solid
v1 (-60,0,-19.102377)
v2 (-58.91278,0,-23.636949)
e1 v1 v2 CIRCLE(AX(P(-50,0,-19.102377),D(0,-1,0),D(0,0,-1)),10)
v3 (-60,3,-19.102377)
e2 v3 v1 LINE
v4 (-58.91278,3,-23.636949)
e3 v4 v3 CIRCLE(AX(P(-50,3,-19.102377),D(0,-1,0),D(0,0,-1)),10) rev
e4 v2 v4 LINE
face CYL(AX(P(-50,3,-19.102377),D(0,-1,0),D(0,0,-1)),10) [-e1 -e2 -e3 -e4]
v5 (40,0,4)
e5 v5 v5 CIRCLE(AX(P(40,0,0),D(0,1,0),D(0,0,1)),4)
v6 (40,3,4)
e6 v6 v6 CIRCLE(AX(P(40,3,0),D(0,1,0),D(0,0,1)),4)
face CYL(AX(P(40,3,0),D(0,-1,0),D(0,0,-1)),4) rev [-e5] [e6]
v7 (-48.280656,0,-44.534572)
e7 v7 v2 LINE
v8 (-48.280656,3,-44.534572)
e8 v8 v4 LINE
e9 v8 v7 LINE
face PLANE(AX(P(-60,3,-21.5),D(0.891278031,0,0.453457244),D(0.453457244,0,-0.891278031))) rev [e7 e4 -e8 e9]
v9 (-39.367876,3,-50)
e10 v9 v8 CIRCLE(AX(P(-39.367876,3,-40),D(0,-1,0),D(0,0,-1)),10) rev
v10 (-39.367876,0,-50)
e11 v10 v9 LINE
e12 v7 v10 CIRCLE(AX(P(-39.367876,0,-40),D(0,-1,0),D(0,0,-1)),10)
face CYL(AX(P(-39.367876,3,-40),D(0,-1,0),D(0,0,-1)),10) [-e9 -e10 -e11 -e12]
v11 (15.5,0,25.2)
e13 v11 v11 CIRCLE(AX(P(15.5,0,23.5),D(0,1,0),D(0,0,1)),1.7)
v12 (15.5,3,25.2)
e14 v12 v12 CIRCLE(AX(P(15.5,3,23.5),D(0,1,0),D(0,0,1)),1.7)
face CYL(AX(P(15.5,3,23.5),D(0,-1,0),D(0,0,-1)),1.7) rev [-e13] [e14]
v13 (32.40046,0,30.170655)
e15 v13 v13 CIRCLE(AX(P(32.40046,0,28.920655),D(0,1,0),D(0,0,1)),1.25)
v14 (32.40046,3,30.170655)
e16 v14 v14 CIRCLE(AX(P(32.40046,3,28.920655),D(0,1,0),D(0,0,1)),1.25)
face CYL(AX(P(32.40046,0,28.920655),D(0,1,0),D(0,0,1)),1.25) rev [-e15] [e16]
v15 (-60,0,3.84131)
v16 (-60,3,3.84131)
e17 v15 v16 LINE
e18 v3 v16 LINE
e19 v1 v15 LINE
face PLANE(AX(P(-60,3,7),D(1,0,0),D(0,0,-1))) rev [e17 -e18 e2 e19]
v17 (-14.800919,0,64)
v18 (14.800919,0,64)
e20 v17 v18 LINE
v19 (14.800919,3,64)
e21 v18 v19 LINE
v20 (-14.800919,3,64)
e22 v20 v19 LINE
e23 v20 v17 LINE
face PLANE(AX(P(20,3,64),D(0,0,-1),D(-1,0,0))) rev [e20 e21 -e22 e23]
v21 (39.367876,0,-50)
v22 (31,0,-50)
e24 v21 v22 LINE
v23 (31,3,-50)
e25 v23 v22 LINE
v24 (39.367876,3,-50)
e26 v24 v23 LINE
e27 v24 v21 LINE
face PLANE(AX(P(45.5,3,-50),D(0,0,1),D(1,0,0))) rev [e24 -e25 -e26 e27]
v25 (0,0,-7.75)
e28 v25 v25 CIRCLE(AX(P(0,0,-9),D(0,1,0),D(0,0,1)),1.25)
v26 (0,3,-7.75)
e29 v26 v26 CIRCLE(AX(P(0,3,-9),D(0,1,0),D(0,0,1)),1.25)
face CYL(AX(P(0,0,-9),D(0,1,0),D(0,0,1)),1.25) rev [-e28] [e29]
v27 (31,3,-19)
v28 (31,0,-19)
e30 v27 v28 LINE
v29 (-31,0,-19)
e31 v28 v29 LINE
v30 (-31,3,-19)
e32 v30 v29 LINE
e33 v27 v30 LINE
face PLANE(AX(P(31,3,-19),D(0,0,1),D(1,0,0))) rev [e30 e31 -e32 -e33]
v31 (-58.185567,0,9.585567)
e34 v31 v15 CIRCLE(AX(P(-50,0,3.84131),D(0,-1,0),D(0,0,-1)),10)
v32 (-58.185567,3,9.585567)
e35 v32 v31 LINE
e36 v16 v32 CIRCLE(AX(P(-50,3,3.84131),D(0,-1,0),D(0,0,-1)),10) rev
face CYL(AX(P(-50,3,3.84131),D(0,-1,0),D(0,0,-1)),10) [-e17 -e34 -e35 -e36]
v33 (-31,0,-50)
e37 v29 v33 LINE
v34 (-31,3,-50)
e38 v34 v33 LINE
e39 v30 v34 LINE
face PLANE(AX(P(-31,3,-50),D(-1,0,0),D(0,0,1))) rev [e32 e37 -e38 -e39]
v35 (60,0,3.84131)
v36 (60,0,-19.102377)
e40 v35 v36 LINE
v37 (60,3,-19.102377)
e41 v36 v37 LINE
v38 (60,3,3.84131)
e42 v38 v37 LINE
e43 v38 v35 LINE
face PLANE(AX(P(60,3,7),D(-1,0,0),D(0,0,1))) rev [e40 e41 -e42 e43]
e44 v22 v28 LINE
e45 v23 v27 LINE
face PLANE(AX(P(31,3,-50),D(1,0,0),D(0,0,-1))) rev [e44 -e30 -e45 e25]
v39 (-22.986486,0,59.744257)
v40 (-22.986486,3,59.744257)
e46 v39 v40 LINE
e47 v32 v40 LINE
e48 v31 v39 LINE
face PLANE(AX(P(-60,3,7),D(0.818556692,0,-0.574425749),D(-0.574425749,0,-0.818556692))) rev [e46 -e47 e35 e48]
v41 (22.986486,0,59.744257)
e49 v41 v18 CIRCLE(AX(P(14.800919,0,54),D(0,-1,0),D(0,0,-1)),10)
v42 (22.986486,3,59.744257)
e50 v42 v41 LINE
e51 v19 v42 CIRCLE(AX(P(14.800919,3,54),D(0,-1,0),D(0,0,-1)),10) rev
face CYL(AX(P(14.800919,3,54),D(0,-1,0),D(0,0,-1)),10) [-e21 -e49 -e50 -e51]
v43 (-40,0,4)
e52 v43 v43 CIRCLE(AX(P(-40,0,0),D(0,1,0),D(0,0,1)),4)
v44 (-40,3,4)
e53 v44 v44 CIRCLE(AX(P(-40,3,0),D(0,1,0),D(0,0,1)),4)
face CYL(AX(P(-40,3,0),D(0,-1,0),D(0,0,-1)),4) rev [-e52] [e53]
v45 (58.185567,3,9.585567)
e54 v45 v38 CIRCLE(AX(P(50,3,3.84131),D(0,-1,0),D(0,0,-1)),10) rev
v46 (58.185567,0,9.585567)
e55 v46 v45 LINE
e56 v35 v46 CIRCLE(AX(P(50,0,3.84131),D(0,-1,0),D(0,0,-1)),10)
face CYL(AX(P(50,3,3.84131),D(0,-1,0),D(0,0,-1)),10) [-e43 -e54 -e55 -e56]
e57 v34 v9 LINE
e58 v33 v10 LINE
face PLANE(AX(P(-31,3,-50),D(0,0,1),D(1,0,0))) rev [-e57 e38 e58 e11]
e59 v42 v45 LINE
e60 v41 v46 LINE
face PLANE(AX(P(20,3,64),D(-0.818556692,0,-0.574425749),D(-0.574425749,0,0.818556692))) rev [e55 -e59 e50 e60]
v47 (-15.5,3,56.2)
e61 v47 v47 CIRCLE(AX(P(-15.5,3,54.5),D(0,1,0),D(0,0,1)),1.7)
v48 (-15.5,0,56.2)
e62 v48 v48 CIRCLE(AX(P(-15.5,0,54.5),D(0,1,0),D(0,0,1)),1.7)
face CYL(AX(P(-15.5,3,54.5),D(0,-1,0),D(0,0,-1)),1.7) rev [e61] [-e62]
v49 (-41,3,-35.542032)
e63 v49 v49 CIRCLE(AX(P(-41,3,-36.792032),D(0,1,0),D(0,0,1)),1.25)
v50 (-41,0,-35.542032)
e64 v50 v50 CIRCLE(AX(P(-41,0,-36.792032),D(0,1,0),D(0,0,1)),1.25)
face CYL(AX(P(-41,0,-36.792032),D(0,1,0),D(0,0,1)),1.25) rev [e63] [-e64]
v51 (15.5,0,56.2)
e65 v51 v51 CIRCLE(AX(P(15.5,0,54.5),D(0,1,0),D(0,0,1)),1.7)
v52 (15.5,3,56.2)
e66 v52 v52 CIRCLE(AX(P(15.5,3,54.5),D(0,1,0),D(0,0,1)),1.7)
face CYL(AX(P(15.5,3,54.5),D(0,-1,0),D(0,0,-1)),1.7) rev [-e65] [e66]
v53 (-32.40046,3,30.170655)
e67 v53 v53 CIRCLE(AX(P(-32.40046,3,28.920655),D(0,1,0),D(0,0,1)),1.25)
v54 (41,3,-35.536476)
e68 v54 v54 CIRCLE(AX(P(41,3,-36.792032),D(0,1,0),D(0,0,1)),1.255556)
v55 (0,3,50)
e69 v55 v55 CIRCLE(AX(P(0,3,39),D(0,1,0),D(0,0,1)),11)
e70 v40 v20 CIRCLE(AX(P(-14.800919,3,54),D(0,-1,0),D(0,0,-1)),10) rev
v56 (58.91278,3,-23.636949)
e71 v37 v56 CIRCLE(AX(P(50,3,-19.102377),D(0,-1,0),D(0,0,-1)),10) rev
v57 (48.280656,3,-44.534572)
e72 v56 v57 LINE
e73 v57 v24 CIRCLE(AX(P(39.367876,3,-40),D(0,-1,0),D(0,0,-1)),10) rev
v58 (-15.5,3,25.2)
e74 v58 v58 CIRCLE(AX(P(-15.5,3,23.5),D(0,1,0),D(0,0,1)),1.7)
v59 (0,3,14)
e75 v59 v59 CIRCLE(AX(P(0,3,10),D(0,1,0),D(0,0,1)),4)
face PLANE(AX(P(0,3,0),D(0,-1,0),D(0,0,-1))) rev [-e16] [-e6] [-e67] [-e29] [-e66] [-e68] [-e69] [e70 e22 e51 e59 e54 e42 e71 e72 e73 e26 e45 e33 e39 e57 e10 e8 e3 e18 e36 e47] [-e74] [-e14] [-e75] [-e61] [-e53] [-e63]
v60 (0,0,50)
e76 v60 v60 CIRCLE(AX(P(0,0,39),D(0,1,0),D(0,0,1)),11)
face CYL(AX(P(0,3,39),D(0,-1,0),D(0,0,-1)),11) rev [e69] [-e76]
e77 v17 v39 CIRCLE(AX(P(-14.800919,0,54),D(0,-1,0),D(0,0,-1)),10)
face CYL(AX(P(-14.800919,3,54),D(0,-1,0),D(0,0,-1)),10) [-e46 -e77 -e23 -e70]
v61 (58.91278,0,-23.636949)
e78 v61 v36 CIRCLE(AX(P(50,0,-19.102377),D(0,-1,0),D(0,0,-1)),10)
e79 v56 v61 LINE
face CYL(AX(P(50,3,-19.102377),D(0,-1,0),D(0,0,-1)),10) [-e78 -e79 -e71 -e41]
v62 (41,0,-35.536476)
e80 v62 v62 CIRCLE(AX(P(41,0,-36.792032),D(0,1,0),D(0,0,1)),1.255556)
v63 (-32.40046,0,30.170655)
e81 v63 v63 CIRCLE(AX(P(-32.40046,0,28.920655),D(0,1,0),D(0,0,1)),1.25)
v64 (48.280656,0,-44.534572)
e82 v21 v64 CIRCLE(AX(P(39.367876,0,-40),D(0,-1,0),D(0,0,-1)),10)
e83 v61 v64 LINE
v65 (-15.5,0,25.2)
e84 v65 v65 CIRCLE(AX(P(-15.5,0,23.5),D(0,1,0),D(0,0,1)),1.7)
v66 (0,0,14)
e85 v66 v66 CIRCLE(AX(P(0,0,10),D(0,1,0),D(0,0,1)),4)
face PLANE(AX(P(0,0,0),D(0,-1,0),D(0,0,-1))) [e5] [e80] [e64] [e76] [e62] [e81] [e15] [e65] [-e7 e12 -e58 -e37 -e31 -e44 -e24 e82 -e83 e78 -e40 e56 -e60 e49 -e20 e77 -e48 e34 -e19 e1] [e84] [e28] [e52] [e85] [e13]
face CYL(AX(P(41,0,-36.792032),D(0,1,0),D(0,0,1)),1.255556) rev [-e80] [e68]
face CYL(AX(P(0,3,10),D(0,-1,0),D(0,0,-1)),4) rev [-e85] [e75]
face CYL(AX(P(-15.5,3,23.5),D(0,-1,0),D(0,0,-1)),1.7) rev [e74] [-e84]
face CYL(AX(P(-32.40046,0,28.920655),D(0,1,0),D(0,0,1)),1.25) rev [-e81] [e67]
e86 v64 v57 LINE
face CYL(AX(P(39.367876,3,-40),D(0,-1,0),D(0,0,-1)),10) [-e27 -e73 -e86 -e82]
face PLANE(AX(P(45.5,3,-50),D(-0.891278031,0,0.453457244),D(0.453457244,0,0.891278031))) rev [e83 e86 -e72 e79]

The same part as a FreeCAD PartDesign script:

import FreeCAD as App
import Part
import Sketcher
from FreeCAD import Vector
Q = App.Units.Quantity


def edges_at(feature, points):
    """Names of the edges that pass closest to the given points."""
    edges = feature.Shape.Edges
    near = lambda p: min(range(len(edges)), key=lambda i: edges[i].distToShape(Part.Vertex(*p))[0])
    return sorted({f"Edge{near(p) + 1}" for p in points})


def add_polygon(sketch, points):
    """Adds a closed chain of lines whose ends are joined by coincident constraints."""
    first, n = sketch.GeometryCount, len(points)
    for a, b in zip(points, points[1:] + points[:1]):
        sketch.addGeometry(Part.LineSegment(App.Vector(*a, 0), App.Vector(*b, 0)), False)
    for i in range(n):
        sketch.addConstraint(Sketcher.Constraint("Coincident", first + i, 2, first + (i + 1) % n, 1))

doc = App.newDocument("Part")
body = doc.addObject("PartDesign::Body", "Body")

# Sketch on XZ plane
sketch1 = body.newObject("Sketcher::SketchObject", "Sketch")
sketch1.AttachmentSupport = (doc.getObject("XZ_Plane"), [""])
sketch1.MapMode = "FlatFace"
add_polygon(sketch1, [(-20, 64), (20, 64), (60, 7), (60, -21.5), (45.5, -50), (31, -50), (31, -19), (-31, -19), (-31, -50), (-45.5, -50), (-60, -21.5), (-60, 7)])  # lines 0-11
sketch1.addGeometry(Part.Circle(Vector(15.5, 54.5, 0), Vector(0, 0, 1), 1.7), False)  # 12
sketch1.addGeometry(Part.Circle(Vector(-15.5, 54.5, 0), Vector(0, 0, 1), 1.7), False)  # 13
sketch1.addGeometry(Part.Circle(Vector(0, 39, 0), Vector(0, 0, 1), 11), False)  # 14
sketch1.addGeometry(Part.Circle(Vector(15.5, 23.5, 0), Vector(0, 0, 1), 1.7), False)  # 15
sketch1.addGeometry(Part.Circle(Vector(40, 0, 0), Vector(0, 0, 1), 4), False)  # 16
sketch1.addGeometry(Part.Circle(Vector(-15.5, 23.5, 0), Vector(0, 0, 1), 1.7), False)  # 17
sketch1.addGeometry(Part.Circle(Vector(0, 10, 0), Vector(0, 0, 1), 4), False)  # 18
sketch1.addGeometry(Part.Circle(Vector(-40, 0, 0), Vector(0, 0, 1), 4), False)  # 19
sketch1.addConstraint([
    Sketcher.Constraint("Horizontal", 0),
    Sketcher.Constraint("Vertical", 2),
    Sketcher.Constraint("Horizontal", 4),
    Sketcher.Constraint("Vertical", 5),
    Sketcher.Constraint("Horizontal", 6),
    Sketcher.Constraint("Vertical", 7),
    Sketcher.Constraint("Horizontal", 8),
    Sketcher.Constraint("Vertical", 10),
    Sketcher.Constraint("Equal", 12, 13),
    Sketcher.Constraint("Equal", 13, 15),
    Sketcher.Constraint("Equal", 15, 17),
    Sketcher.Constraint("Equal", 16, 18),
    Sketcher.Constraint("Equal", 18, 19),
    Sketcher.Constraint("Symmetric", 16, 3, 19, 3, -1, 1),
    Sketcher.Constraint("Symmetric", 12, 3, 13, 3, -2),
    Sketcher.Constraint("Symmetric", 15, 3, 17, 3, -2),
    Sketcher.Constraint("Symmetric", 4, 2, 7, 2, -2),
    Sketcher.Constraint("Symmetric", 2, 2, 9, 2, -2),
    Sketcher.Constraint("PointOnObject", 14, 3, -2),
    Sketcher.Constraint("PointOnObject", 16, 3, -1),
    Sketcher.Constraint("PointOnObject", 18, 3, -2),
    Sketcher.Constraint("Horizontal", 1, 2, 10, 2),
    Sketcher.Constraint("Vertical", 12, 3, 15, 3),
    Sketcher.Constraint("Equal", 4, 8),
    Sketcher.Constraint("Equal", 1, 11),
    Sketcher.Constraint("Diameter", 14, Q("22 mm")),
    Sketcher.Constraint("Diameter", 16, Q("8 mm")),
    Sketcher.Constraint("Diameter", 12, Q("3.4 mm")),
    Sketcher.Constraint("DistanceX", 0, 1, 0, 2, Q("40 mm")),
    Sketcher.Constraint("DistanceX", 6, 2, 6, 1, Q("62 mm")),
    Sketcher.Constraint("DistanceY", 5, 1, 5, 2, Q("31 mm")),
    Sketcher.Constraint("DistanceX", 4, 2, 4, 1, Q("14.5 mm")),
    Sketcher.Constraint("DistanceY", 2, 2, 2, 1, Q("28.5 mm")),
    Sketcher.Constraint("DistanceY", -1, 1, 14, 3, Q("39 mm")),
    Sketcher.Constraint("DistanceX", -1, 1, 16, 3, Q("40 mm")),
    Sketcher.Constraint("DistanceY", -1, 1, 18, 3, Q("10 mm")),
    Sketcher.Constraint("DistanceY", -1, 1, 0, 2, Q("64 mm")),
    Sketcher.Constraint("DistanceX", -1, 1, 1, 2, Q("60 mm")),
    Sketcher.Constraint("DistanceY", -1, 1, 1, 2, Q("7 mm")),
    Sketcher.Constraint("DistanceY", 3, 2, -1, 1, Q("50 mm")),
    Sketcher.Constraint("DistanceX", 13, 3, 12, 3, Q("31 mm")),
    Sketcher.Constraint("DistanceY", 15, 3, 12, 3, Q("31 mm")),
    Sketcher.Constraint("DistanceY", 2, 2, 15, 3, Q("45 mm")),
])
pad1 = body.newObject("PartDesign::Pad", "Pad")
pad1.Profile = sketch1
pad1.Length = 3
pad1.Reversed = True
doc.recompute()

fillet = body.newObject("PartDesign::Fillet", "Fillet")
fillet.Base = (pad1, edges_at(pad1, [
    (45.5, 1.5, -50),
    (60, 1.5, -21.5),
    (60, 1.5, 7),
    (20, 1.5, 64),
    (-20, 1.5, 64),
    (-60, 1.5, 7),
    (-60, 1.5, -21.5),
    (-45.5, 1.5, -50),
]))
fillet.Radius = 10

# Sketch on XZ plane
sketch2 = body.newObject("Sketcher::SketchObject", "Sketch001")
sketch2.AttachmentSupport = (doc.getObject("XZ_Plane"), [""])
sketch2.MapMode = "FlatFace"
sketch2.AttachmentOffset = App.Placement(Vector(0, 0, -3), App.Rotation())
sketch2.addGeometry([
    Part.Circle(Vector(-32.4, 28.9, 0), Vector(0, 0, 1), 1.2),  # 0
    Part.Circle(Vector(32.4, 28.9, 0), Vector(0, 0, 1), 1.2),  # 1
    Part.Circle(Vector(0, -9, 0), Vector(0, 0, 1), 1.2),  # 2
    Part.Circle(Vector(-41, -36.8, 0), Vector(0, 0, 1), 1.2),  # 3
    Part.Circle(Vector(41, -36.8, 0), Vector(0, 0, 1), 1.3),  # 4
], False)
sketch2.addConstraint([
    Sketcher.Constraint("Equal", 0, 1),
    Sketcher.Constraint("Equal", 1, 2),
    Sketcher.Constraint("Equal", 2, 3),
    Sketcher.Constraint("Symmetric", 0, 3, 1, 3, -2),
    Sketcher.Constraint("Symmetric", 3, 3, 4, 3, -2),
    Sketcher.Constraint("PointOnObject", 2, 3, -2),
    Sketcher.Constraint("Diameter", 0, Q("2.5 mm")),
    Sketcher.Constraint("DistanceY", 2, 3, -1, 1, Q("9 mm")),
    Sketcher.Constraint("DistanceX", 3, 3, -1, 1, Q("41 mm")),
    Sketcher.Constraint("Diameter", 4, Q("2.511111 mm")),
    Sketcher.Constraint("DistanceX", 0, 3, -1, 1, Q("32.40046 mm")),
    Sketcher.Constraint("DistanceY", 3, 3, -1, 1, Q("36.792032 mm")),
    Sketcher.Constraint("DistanceY", -1, 1, 0, 3, Q("28.920655 mm")),
])
pocket1 = body.newObject("PartDesign::Pocket", "Pocket")
pocket1.Profile = sketch2
pocket1.Length = 3
pocket1.Reversed = True

doc.recompute()
